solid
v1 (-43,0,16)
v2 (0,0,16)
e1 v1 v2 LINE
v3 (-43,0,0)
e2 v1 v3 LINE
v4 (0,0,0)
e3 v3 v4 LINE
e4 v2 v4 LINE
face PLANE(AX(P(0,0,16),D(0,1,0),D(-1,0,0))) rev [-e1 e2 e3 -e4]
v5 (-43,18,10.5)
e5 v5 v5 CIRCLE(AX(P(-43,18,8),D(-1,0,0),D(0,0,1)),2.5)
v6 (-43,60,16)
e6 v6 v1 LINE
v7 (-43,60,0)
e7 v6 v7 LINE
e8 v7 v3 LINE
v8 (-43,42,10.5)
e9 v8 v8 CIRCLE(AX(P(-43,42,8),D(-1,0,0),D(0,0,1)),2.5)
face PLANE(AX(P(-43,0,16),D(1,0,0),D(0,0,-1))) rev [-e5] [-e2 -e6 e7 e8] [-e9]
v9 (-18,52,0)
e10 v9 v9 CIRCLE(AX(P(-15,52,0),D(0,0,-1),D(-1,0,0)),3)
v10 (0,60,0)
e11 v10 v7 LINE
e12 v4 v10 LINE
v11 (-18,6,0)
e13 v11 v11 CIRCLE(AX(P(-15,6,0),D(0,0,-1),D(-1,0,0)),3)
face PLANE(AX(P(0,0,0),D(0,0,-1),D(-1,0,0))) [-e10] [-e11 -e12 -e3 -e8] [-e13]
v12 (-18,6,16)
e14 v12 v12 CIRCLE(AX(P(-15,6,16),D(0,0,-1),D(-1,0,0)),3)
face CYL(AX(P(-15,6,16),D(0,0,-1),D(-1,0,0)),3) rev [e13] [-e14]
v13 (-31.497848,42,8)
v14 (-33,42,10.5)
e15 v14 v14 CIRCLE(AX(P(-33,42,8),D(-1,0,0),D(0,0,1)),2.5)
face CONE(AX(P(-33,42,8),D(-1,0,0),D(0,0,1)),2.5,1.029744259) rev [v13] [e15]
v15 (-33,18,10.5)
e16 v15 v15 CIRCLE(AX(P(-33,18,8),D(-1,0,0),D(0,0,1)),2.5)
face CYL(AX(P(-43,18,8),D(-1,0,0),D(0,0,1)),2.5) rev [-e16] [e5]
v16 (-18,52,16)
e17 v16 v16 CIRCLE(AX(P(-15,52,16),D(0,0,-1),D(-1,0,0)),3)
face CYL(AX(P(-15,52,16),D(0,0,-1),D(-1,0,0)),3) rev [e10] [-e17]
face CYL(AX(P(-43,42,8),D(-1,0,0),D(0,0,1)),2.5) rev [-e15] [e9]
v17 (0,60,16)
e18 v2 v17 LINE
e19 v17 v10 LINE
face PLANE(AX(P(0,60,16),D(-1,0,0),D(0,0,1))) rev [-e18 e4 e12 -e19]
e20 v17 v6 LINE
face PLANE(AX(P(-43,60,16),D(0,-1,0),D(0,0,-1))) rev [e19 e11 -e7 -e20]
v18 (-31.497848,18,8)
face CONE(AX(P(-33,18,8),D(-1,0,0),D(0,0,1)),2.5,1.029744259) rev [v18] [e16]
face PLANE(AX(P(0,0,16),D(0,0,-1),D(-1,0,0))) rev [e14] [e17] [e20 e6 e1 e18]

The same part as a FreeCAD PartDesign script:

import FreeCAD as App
import Part
import Sketcher

V = App.Vector

doc = App.newDocument("Part")
body = doc.addObject("PartDesign::Body", "Body")

sketch1 = body.newObject("Sketcher::SketchObject", "Sketch")
sketch1.AttachmentSupport = (doc.getObject("XY_Plane"), [""])
sketch1.MapMode = "FlatFace"
sketch1.addGeometry(Part.LineSegment(V(-43, 60, 0), V(-43, 0, 0)), False)
sketch1.addGeometry(Part.LineSegment(V(-43, 0, 0), V(0, 0, 0)), False)
sketch1.addGeometry(Part.LineSegment(V(0, 0, 0), V(0, 60, 0)), False)
sketch1.addGeometry(Part.LineSegment(V(0, 60, 0), V(-43, 60, 0)), False)
sketch1.addConstraint(Sketcher.Constraint("Coincident", 0, 2, 1, 1))
sketch1.addConstraint(Sketcher.Constraint("Coincident", 1, 2, 2, 1))
sketch1.addConstraint(Sketcher.Constraint("Coincident", 2, 2, 3, 1))
sketch1.addConstraint(Sketcher.Constraint("Coincident", 3, 2, 0, 1))
sketch1.addConstraint(Sketcher.Constraint("Vertical", 0))
sketch1.addConstraint(Sketcher.Constraint("Horizontal", 1))
sketch1.addConstraint(Sketcher.Constraint("Vertical", 2))
sketch1.addConstraint(Sketcher.Constraint("Horizontal", 3))
sketch1.addConstraint(Sketcher.Constraint("Coincident", 1, 2, -1, 1))
sketch1.addConstraint(Sketcher.Constraint("DistanceX", 1, 1, 1, 2, 43.0))
sketch1.addConstraint(Sketcher.Constraint("DistanceY", 0, 2, 0, 1, 60.0))
pad1 = body.newObject("PartDesign::Pad", "Pad")
pad1.Profile = sketch1
pad1.Length = 16

sketch2 = body.newObject("Sketcher::SketchObject", "Sketch001")
sketch2.AttachmentSupport = (doc.getObject("XY_Plane"), [""])
sketch2.MapMode = "FlatFace"
sketch2.addGeometry(Part.Circle(V(-15, 52, 0), V(0, 0, 1), 3), False)
sketch2.addGeometry(Part.Circle(V(-15, 6, 0), V(0, 0, 1), 3), False)
sketch2.addConstraint(Sketcher.Constraint("Equal", 0, 1))
sketch2.addConstraint(Sketcher.Constraint("Vertical", 0, 3, 1, 3))
sketch2.addConstraint(Sketcher.Constraint("Diameter", 0, 6.0))
sketch2.addConstraint(Sketcher.Constraint("DistanceX", 0, 3, -1, 1, 15.0))
sketch2.addConstraint(Sketcher.Constraint("DistanceY", -1, 1, 0, 3, 52.0))
sketch2.addConstraint(Sketcher.Constraint("DistanceY", -1, 1, 1, 3, 6.0))
pocket1 = body.newObject("PartDesign::Pocket", "Pocket")
pocket1.Profile = sketch2
pocket1.Type = "ThroughAll"
pocket1.Reversed = True

sketch3 = body.newObject("Sketcher::SketchObject", "Sketch002")
sketch3.AttachmentSupport = (doc.getObject("YZ_Plane"), [""])
sketch3.MapMode = "FlatFace"
sketch3.AttachmentOffset = App.Placement(V(0, 0, -43), App.Rotation())
sketch3.addGeometry(Part.Circle(V(42, 8, 0), V(0, 0, 1), 2.5), False)
sketch3.addGeometry(Part.Circle(V(18, 8, 0), V(0, 0, 1), 2.5), False)
sketch3.addConstraint(Sketcher.Constraint("Equal", 0, 1))
sketch3.addConstraint(Sketcher.Constraint("Horizontal", 0, 3, 1, 3))
sketch3.addConstraint(Sketcher.Constraint("Diameter", 0, 5.0))
sketch3.addConstraint(Sketcher.Constraint("DistanceX", -1, 1, 0, 3, 42.0))
sketch3.addConstraint(Sketcher.Constraint("DistanceY", -1, 1, 0, 3, 8.0))
sketch3.addConstraint(Sketcher.Constraint("DistanceX", -1, 1, 1, 3, 18.0))
doc.recompute()
hole = body.newObject("PartDesign::Hole", "Hole")
hole.Profile = sketch3
hole.ThreadType = "None"
hole.Diameter = 5
hole.DepthType = "Dimension"
hole.Depth = 10
hole.DrillPoint = "Angled"
hole.DrillPointAngle = 118
hole.Reversed = True

doc.recompute()
